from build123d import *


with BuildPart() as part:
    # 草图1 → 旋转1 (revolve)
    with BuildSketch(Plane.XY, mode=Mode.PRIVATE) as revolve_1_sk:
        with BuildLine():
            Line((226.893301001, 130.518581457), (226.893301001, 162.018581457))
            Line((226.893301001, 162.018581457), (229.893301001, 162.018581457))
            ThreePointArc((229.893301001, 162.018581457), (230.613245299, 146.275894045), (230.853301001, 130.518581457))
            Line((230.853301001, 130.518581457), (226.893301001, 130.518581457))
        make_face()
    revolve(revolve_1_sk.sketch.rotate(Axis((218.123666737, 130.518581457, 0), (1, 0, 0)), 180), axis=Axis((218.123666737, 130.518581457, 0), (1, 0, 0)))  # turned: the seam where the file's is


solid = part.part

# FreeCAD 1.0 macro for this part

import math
import FreeCAD as App
import Part
import Sketcher

V = App.Vector
Q = App.Units.Quantity

doc = App.newDocument("Part")
body = doc.addObject("PartDesign::Body", "Body")

# Sketch on XY plane
sketch1 = body.newObject("Sketcher::SketchObject", "Sketch")
sketch1.AttachmentSupport = (doc.getObject("XY_Plane"), [""])
sketch1.MapMode = "FlatFace"
sketch1.addGeometry([
    Part.LineSegment(V(226.9, 162, 0), V(226.9, 130.5, 0)),
    Part.LineSegment(V(226.9, 130.5, 0), V(230.9, 130.5, 0)),
    Part.ArcOfCircle(Part.Circle(V(-286.4, 130.5, 0), V(0, 0, 1), 517.3), math.radians(0), math.radians(3.49)),
    Part.LineSegment(V(229.9, 162, 0), V(226.9, 162, 0)),
], False)
sketch1.addGeometry(Part.LineSegment(V(-286.4, 130.5, 0), V(230.9, 130.5, 0)), True)  # axis
sketch1.addConstraint([
    Sketcher.Constraint("Coincident", 0, 2, 1, 1),
    Sketcher.Constraint("Coincident", 1, 2, 2, 1),
    Sketcher.Constraint("Coincident", 2, 2, 3, 1),
    Sketcher.Constraint("Coincident", 3, 2, 0, 1),
    Sketcher.Constraint("Vertical", 0),
    Sketcher.Constraint("Horizontal", 1),
    Sketcher.Constraint("Horizontal", 3),
    Sketcher.Constraint("Horizontal", 4),
    Sketcher.Constraint("Coincident", 4, 1, 2, 3),
    Sketcher.Constraint("Coincident", 4, 2, 1, 2),
    Sketcher.Constraint("DistanceX", 3, 2, 3, 1, Q("3 mm")),
    Sketcher.Constraint("DistanceY", 0, 2, 0, 1, Q("31.5 mm")),
    Sketcher.Constraint("Radius", 2, Q("517.276875 mm")),
    Sketcher.Constraint("DistanceX", -1, 1, 0, 2, Q("226.893301 mm")),
    Sketcher.Constraint("DistanceY", -1, 1, 2, 3, Q("130.518581 mm")),
])
revolution = body.newObject("PartDesign::Revolution", "Revolution")
revolution.Profile = sketch1
revolution.ReferenceAxis = (sketch1, ["Axis0"])
revolution.Angle = 360

doc.recompute()
